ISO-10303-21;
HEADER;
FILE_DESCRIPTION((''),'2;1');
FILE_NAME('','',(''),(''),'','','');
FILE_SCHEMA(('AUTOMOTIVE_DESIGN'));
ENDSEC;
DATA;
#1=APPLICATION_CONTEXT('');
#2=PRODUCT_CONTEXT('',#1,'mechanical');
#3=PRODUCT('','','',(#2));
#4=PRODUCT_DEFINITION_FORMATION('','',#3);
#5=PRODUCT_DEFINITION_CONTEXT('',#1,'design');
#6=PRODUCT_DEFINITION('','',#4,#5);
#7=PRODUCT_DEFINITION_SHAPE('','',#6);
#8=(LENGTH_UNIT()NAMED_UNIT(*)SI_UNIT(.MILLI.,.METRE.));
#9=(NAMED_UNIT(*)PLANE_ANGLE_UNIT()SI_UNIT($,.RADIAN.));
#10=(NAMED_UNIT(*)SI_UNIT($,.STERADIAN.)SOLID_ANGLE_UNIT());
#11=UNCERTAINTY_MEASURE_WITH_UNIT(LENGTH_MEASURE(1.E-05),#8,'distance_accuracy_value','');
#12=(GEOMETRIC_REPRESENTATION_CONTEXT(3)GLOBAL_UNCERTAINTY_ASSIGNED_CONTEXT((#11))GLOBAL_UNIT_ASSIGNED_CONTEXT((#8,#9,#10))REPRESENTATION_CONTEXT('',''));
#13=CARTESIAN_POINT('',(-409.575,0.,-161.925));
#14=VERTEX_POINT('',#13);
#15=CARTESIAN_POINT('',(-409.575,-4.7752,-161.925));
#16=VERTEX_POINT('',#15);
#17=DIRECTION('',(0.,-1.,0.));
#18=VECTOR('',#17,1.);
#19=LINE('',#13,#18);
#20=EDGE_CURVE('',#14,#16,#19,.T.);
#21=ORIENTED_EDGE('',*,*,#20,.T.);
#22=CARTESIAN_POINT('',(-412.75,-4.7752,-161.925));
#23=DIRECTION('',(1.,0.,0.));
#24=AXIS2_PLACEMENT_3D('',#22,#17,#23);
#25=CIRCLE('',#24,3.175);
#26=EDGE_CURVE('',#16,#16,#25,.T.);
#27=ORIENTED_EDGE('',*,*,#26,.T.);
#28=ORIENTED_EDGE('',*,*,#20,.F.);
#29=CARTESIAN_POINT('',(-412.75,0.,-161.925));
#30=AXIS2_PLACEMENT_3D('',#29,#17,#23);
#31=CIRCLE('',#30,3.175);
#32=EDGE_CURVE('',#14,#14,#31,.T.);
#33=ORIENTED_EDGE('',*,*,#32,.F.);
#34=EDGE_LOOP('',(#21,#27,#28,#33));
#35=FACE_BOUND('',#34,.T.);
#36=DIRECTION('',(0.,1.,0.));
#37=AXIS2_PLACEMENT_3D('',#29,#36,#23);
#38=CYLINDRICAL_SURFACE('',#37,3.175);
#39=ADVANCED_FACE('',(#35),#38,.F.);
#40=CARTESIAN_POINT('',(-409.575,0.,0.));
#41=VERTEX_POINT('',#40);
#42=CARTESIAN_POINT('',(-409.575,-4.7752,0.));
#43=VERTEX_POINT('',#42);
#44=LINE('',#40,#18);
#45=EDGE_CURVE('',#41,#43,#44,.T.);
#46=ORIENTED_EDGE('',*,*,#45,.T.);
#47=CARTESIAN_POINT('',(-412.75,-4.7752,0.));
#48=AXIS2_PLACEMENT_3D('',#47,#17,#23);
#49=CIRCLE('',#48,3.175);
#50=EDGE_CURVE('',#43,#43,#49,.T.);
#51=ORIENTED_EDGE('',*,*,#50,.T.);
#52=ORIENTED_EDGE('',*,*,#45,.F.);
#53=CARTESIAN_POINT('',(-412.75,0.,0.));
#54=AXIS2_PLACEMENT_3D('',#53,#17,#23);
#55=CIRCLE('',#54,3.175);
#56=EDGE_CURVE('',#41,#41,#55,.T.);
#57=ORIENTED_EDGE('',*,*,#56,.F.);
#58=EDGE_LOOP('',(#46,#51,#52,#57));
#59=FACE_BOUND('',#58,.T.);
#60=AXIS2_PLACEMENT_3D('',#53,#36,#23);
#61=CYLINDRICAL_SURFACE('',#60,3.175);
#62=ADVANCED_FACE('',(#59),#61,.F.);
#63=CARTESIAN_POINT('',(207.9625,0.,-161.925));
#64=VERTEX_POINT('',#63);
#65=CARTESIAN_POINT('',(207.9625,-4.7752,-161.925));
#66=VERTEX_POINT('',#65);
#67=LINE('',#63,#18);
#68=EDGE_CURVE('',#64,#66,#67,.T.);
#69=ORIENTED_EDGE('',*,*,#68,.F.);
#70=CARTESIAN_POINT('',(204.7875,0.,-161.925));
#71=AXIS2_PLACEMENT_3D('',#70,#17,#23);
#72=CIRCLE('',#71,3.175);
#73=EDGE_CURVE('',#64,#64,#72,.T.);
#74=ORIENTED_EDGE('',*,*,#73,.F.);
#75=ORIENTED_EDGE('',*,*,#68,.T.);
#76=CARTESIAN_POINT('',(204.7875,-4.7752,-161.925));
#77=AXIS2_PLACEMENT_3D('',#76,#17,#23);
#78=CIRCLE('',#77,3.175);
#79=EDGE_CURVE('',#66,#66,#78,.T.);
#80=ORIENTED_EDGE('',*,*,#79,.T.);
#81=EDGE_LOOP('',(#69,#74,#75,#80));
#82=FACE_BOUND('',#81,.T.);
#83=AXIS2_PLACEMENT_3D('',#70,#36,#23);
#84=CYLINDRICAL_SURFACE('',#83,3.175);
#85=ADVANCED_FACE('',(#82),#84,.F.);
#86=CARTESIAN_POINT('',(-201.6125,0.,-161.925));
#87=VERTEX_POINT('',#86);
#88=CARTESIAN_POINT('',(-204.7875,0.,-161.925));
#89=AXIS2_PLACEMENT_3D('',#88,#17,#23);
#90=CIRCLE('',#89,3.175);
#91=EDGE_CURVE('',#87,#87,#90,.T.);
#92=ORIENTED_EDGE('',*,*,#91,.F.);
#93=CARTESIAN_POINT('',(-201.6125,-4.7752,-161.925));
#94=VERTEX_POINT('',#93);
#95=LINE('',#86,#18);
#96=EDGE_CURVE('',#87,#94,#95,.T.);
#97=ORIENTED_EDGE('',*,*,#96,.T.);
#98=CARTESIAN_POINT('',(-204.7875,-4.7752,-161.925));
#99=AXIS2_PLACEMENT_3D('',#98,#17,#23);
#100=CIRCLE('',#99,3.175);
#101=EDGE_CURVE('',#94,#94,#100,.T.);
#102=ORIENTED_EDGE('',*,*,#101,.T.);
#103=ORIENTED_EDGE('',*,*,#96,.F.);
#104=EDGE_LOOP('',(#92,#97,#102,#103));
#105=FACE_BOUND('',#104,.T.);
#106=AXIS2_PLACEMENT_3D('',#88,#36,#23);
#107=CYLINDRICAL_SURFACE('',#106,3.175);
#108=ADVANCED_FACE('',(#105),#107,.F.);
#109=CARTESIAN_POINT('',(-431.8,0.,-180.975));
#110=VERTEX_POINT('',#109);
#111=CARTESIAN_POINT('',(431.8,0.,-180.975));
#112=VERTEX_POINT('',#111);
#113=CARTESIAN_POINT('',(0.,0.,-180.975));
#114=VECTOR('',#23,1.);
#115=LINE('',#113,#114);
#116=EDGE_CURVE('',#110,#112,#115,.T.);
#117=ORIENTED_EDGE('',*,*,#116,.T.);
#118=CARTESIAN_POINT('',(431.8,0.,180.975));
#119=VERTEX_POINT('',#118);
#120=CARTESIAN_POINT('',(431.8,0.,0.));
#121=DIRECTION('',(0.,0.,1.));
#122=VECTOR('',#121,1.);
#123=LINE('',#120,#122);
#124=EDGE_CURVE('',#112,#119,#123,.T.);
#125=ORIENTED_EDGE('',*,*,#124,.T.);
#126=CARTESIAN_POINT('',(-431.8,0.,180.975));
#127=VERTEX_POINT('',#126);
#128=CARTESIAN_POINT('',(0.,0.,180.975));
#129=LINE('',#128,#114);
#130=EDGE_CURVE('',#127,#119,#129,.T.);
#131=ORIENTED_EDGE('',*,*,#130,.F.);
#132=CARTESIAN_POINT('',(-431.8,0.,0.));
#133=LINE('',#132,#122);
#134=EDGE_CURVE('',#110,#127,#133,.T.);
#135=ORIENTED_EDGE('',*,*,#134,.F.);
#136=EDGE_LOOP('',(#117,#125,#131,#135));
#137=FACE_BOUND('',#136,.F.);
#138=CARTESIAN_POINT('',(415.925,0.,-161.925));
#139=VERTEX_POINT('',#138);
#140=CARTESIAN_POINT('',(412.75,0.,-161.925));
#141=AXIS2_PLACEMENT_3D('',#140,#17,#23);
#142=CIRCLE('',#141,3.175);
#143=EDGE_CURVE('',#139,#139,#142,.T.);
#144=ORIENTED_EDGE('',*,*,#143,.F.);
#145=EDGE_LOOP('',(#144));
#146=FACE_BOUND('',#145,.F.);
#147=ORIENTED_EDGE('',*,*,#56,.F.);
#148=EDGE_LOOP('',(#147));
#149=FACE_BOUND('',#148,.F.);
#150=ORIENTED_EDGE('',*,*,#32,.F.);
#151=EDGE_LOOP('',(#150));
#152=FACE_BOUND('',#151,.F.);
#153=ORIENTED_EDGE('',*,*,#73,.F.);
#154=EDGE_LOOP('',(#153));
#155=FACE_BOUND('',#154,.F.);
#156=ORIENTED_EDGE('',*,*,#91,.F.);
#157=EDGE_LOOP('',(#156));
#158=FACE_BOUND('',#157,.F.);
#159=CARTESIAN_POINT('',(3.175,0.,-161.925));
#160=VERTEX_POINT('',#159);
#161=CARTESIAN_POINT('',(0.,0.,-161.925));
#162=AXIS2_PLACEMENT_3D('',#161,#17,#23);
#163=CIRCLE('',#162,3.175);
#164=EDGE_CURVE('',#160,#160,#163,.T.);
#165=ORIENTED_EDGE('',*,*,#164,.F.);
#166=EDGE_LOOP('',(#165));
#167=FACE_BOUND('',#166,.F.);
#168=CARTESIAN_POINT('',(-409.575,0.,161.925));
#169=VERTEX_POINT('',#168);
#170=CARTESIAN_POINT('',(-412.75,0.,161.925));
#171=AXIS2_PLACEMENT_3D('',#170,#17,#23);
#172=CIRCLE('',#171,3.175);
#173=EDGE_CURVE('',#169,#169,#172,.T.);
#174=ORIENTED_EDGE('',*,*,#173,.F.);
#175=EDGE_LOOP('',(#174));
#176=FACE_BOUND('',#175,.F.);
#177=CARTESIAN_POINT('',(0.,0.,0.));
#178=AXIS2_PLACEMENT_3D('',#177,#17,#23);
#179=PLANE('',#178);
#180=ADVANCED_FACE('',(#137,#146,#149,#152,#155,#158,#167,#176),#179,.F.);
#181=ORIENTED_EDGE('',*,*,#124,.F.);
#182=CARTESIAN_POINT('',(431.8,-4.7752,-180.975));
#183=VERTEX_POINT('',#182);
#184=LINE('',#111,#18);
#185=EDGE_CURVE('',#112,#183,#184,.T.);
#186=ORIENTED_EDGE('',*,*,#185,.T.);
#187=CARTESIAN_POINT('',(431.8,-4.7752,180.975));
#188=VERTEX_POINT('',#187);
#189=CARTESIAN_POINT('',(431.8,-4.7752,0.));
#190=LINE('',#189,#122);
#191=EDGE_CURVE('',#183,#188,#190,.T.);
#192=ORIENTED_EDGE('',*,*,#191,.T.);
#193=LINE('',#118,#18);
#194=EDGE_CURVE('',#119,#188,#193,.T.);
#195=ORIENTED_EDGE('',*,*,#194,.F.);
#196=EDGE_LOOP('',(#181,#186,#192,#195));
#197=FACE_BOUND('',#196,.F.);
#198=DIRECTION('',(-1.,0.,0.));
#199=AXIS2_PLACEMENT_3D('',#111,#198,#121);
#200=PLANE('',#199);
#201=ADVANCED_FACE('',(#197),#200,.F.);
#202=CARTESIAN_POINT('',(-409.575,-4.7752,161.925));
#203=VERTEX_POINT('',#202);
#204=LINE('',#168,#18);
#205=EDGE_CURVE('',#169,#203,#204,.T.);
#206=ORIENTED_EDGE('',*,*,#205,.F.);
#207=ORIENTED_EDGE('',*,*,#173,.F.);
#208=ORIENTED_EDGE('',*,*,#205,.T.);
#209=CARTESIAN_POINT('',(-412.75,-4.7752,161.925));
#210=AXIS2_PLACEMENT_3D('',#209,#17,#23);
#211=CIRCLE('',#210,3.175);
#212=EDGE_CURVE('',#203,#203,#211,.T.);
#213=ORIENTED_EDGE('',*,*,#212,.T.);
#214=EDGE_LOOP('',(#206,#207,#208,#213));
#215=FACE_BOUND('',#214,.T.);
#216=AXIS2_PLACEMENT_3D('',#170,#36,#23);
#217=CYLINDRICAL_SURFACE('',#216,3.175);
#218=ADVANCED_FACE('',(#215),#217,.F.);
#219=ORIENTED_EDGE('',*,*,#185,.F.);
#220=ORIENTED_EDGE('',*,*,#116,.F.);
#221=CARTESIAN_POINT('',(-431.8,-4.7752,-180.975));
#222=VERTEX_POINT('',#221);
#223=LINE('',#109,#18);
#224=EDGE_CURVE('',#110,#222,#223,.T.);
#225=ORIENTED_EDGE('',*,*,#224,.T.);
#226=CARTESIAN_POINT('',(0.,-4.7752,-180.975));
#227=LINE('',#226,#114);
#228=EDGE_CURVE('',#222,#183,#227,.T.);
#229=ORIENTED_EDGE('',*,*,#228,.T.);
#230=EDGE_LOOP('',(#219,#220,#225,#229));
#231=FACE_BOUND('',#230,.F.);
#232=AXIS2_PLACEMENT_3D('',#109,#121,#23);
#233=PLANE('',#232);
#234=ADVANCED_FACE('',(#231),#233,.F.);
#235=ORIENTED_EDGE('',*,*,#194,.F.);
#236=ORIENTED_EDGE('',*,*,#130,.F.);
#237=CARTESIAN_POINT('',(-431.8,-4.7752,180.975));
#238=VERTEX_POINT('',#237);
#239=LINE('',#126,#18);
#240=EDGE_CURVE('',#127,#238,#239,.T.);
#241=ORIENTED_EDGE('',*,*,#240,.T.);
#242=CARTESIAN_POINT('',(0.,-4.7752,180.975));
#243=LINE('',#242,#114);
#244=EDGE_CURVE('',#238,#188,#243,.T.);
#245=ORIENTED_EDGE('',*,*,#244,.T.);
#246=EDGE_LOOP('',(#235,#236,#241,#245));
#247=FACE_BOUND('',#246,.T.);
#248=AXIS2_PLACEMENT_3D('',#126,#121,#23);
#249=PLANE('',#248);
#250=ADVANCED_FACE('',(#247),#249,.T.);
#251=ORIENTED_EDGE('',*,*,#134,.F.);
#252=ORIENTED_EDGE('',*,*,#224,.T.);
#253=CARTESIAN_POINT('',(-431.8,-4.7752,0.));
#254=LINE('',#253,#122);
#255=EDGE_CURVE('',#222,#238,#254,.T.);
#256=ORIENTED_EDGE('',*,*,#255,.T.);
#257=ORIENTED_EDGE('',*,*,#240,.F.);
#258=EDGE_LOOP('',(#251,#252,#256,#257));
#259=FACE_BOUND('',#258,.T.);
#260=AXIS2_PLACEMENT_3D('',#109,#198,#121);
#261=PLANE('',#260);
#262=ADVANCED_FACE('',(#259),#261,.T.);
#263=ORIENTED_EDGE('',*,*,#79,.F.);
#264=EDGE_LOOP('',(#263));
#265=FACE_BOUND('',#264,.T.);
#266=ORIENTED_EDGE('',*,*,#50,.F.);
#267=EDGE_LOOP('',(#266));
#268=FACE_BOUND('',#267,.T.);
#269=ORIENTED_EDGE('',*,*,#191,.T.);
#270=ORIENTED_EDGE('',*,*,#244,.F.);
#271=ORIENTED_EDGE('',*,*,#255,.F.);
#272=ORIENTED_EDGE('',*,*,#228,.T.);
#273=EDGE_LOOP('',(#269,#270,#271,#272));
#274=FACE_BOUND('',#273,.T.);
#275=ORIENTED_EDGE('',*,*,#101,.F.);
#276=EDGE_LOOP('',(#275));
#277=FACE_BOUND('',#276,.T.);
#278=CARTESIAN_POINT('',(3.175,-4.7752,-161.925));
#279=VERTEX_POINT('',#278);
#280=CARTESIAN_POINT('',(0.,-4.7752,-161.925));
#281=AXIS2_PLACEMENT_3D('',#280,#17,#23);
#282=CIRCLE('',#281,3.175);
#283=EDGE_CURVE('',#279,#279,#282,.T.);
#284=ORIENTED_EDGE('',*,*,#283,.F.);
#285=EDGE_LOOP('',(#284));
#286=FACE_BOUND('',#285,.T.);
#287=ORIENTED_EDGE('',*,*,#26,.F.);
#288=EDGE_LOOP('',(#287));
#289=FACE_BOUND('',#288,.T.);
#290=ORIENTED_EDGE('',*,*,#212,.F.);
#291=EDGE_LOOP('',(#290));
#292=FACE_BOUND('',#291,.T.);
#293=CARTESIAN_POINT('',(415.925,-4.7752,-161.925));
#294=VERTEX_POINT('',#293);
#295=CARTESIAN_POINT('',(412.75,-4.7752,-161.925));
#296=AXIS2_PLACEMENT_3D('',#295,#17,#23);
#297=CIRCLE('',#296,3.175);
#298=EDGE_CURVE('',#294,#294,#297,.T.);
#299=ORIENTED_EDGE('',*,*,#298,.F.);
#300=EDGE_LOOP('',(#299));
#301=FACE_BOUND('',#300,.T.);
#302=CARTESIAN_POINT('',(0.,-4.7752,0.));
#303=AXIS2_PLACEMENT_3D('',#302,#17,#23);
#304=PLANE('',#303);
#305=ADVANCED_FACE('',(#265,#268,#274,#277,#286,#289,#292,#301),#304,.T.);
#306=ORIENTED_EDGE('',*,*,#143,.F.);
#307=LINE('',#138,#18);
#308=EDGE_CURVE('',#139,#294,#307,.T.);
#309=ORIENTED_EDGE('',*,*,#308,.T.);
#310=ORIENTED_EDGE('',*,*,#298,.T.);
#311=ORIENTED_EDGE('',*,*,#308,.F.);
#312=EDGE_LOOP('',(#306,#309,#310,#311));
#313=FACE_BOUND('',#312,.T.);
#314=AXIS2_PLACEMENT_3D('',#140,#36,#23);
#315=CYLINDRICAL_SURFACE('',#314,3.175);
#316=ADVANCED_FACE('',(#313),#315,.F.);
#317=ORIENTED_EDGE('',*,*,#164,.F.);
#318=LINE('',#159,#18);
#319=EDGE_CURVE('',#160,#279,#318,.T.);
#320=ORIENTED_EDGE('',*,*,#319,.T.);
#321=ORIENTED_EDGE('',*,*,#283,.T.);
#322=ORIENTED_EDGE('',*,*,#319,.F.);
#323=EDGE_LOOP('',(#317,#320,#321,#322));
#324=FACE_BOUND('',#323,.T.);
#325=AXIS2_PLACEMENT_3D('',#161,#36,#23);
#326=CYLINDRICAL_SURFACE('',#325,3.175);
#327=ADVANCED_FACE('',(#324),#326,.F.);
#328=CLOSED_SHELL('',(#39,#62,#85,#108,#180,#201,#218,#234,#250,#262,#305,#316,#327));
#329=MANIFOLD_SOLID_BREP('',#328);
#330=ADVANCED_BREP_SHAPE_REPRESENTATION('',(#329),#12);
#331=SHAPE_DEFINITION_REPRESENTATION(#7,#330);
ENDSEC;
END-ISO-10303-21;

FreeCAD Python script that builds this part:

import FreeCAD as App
import Part
import Sketcher
from FreeCAD import Vector
Q = App.Units.Quantity


def add_polygon(sketch, points):
    """Adds a closed chain of lines whose ends are joined by coincident constraints."""
    first, n = sketch.GeometryCount, len(points)
    for a, b in zip(points, points[1:] + points[:1]):
        sketch.addGeometry(Part.LineSegment(App.Vector(*a, 0), App.Vector(*b, 0)), False)
    for i in range(n):
        sketch.addConstraint(Sketcher.Constraint("Coincident", first + i, 2, first + (i + 1) % n, 1))

doc = App.newDocument("Part")
params = doc.addObject("Spreadsheet::Sheet", "Params")
for row, (alias, value) in enumerate([
    ("sketch1_diameter", "0.25 in"),
    ("sketch1_width", "34 in"),
    ("sketch1_height", "14.25 in"),
    ("pad1_length", "0.188 in"),
], start=1):
    params.set(f"A{row}", alias)
    params.set(f"B{row}", "=" + value)
    params.setAlias(f"B{row}", alias)

body = doc.addObject("PartDesign::Body", "Body")

# Sketch on XZ plane
sketch1 = body.newObject("Sketcher::SketchObject", "Sketch")
sketch1.AttachmentSupport = (doc.getObject("XZ_Plane"), [""])
sketch1.MapMode = "FlatFace"
add_polygon(sketch1, [(-431.8, 181), (-431.8, -181), (431.8, -181), (431.8, 181)])  # lines 0-3
sketch1.addGeometry(Part.Circle(Vector(-412.8, -161.9, 0), Vector(0, 0, 1), 3.2), False)  # 4
sketch1.addGeometry(Part.Circle(Vector(-204.8, -161.9, 0), Vector(0, 0, 1), 3.2), False)  # 5
sketch1.addGeometry(Part.Circle(Vector(0, -161.9, 0), Vector(0, 0, 1), 3.2), False)  # 6
sketch1.addGeometry(Part.Circle(Vector(204.8, -161.9, 0), Vector(0, 0, 1), 3.2), False)  # 7
sketch1.addGeometry(Part.Circle(Vector(412.8, -161.9, 0), Vector(0, 0, 1), 3.2), False)  # 8
sketch1.addGeometry(Part.Circle(Vector(-412.8, 0, 0), Vector(0, 0, 1), 3.2), False)  # 9
sketch1.addGeometry(Part.Circle(Vector(-412.8, 161.9, 0), Vector(0, 0, 1), 3.2), False)  # 10
sketch1.addConstraint([
    Sketcher.Constraint("Vertical", 0),
    Sketcher.Constraint("Horizontal", 1),
    Sketcher.Constraint("Vertical", 2),
    Sketcher.Constraint("Horizontal", 3),
    Sketcher.Constraint("Equal", 4, 5),
    Sketcher.Constraint("Equal", 5, 6),
    Sketcher.Constraint("Equal", 6, 7),
    Sketcher.Constraint("Equal", 7, 8),
    Sketcher.Constraint("Equal", 8, 9),
    Sketcher.Constraint("Equal", 9, 10),
    Sketcher.Constraint("Symmetric", 8, 3, 10, 3, -1, 1),
    Sketcher.Constraint("Symmetric", 0, 2, 2, 2, -1, 1),
    Sketcher.Constraint("Symmetric", 5, 3, 7, 3, -2),
    Sketcher.Constraint("Symmetric", 4, 3, 8, 3, -2),
    Sketcher.Constraint("PointOnObject", 6, 3, -2),
    Sketcher.Constraint("PointOnObject", 9, 3, -1),
    Sketcher.Constraint("Horizontal", 4, 3, 5, 3),
    Sketcher.Constraint("Horizontal", 5, 3, 6, 3),
    Sketcher.Constraint("Vertical", 4, 3, 9, 3),
    Sketcher.Constraint("Diameter", 4, Q("0.25 in")),
    Sketcher.Constraint("DistanceX", 1, 1, 1, 2, Q("34 in")),
    Sketcher.Constraint("DistanceY", 0, 2, 0, 1, Q("14.25 in")),
    Sketcher.Constraint("DistanceX", 4, 3, 8, 3, Q("32.5 in")),
    Sketcher.Constraint("DistanceY", 0, 2, 10, 3, Q("13.5 in")),
    Sketcher.Constraint("DistanceX", 5, 3, -1, 1, Q("8.0625 in")),
])
sketch1.setExpression("Constraints[23]", "Params.sketch1_diameter")
sketch1.setExpression("Constraints[24]", "Params.sketch1_width")
sketch1.setExpression("Constraints[25]", "Params.sketch1_height")
pad1 = body.newObject("PartDesign::Pad", "Pad")
pad1.Profile = sketch1
pad1.setExpression("Length", "Params.pad1_length")

doc.recompute()
